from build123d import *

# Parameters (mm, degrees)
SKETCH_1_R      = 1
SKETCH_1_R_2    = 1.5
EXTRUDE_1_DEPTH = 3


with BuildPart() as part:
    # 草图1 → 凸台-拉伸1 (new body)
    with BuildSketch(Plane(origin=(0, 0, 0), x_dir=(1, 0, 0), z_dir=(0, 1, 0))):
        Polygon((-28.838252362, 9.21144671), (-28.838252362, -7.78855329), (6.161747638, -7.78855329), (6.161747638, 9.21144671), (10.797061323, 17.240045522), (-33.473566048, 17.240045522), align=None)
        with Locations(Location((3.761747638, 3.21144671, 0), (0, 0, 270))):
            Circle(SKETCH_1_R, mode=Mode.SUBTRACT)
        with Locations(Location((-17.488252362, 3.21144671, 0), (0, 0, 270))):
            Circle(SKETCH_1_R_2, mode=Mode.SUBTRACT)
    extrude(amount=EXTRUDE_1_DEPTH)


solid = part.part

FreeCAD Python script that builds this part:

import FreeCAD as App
import Part
import Sketcher
Q = App.Units.Quantity

doc = App.newDocument("Part")
body = doc.addObject("PartDesign::Body", "Body")

# Sketch on XZ plane
sketch1 = body.newObject("Sketcher::SketchObject", "Sketch")
sketch1.AttachmentSupport = (doc.getObject("XZ_Plane"), [""])
sketch1.MapMode = "FlatFace"
sketch1.addGeometry(Part.LineSegment(App.Vector(-28.8, -9.2, 0), App.Vector(-28.8, 7.8, 0)), False)
sketch1.addGeometry(Part.LineSegment(App.Vector(-28.8, 7.8, 0), App.Vector(6.2, 7.8, 0)), False)
sketch1.addGeometry(Part.LineSegment(App.Vector(6.2, 7.8, 0), App.Vector(6.2, -9.2, 0)), False)
sketch1.addGeometry(Part.LineSegment(App.Vector(6.2, -9.2, 0), App.Vector(10.8, -17.2, 0)), False)
sketch1.addGeometry(Part.LineSegment(App.Vector(10.8, -17.2, 0), App.Vector(-33.5, -17.2, 0)), False)
sketch1.addGeometry(Part.LineSegment(App.Vector(-33.5, -17.2, 0), App.Vector(-28.8, -9.2, 0)), False)
sketch1.addGeometry(Part.Circle(App.Vector(3.8, -3.2, 0), App.Vector(0, 0, 1), 1), False)
sketch1.addGeometry(Part.Circle(App.Vector(-17.5, -3.2, 0), App.Vector(0, 0, 1), 1.5), False)
sketch1.addConstraint(Sketcher.Constraint("Coincident", 0, 2, 1, 1))
sketch1.addConstraint(Sketcher.Constraint("Coincident", 1, 2, 2, 1))
sketch1.addConstraint(Sketcher.Constraint("Coincident", 2, 2, 3, 1))
sketch1.addConstraint(Sketcher.Constraint("Coincident", 3, 2, 4, 1))
sketch1.addConstraint(Sketcher.Constraint("Coincident", 4, 2, 5, 1))
sketch1.addConstraint(Sketcher.Constraint("Coincident", 5, 2, 0, 1))
sketch1.addConstraint(Sketcher.Constraint("Vertical", 0))
sketch1.addConstraint(Sketcher.Constraint("Horizontal", 1))
sketch1.addConstraint(Sketcher.Constraint("Vertical", 2))
sketch1.addConstraint(Sketcher.Constraint("Horizontal", 4))
sketch1.addConstraint(Sketcher.Constraint("Horizontal", 6, 3, 7, 3))
sketch1.addConstraint(Sketcher.Constraint("Horizontal", 2, 2, 5, 2))
sketch1.addConstraint(Sketcher.Constraint("Equal", 3, 5))
sketch1.addConstraint(Sketcher.Constraint("Diameter", 6, 2.0))
sketch1.addConstraint(Sketcher.Constraint("Diameter", 7, 3.0))
sketch1.addConstraint(Sketcher.Constraint("DistanceX", 1, 1, 1, 2, 35.0))
sketch1.addConstraint(Sketcher.Constraint("DistanceY", 0, 1, 0, 2, 17.0))
sketch1.addConstraint(Sketcher.Constraint("Angle", 3, Q("-60 deg")))
sketch1.addConstraint(Sketcher.Constraint("DistanceY", 7, 3, 0, 2, 11.0))
sketch1.addConstraint(Sketcher.Constraint("DistanceX", 0, 2, 6, 3, 32.6))
sketch1.addConstraint(Sketcher.Constraint("DistanceX", 7, 3, 6, 3, 21.25))
sketch1.addConstraint(Sketcher.Constraint("DistanceY", 3, 2, 2, 2, 8.028599))
sketch1.addConstraint(Sketcher.Constraint("DistanceX", -1, 1, 3, 2, 10.797061))
sketch1.addConstraint(Sketcher.Constraint("DistanceY", 6, 3, -1, 1, 3.211447))
pad1 = body.newObject("PartDesign::Pad", "Pad")
pad1.Profile = sketch1
pad1.Length = 3
pad1.Reversed = True

doc.recompute()
